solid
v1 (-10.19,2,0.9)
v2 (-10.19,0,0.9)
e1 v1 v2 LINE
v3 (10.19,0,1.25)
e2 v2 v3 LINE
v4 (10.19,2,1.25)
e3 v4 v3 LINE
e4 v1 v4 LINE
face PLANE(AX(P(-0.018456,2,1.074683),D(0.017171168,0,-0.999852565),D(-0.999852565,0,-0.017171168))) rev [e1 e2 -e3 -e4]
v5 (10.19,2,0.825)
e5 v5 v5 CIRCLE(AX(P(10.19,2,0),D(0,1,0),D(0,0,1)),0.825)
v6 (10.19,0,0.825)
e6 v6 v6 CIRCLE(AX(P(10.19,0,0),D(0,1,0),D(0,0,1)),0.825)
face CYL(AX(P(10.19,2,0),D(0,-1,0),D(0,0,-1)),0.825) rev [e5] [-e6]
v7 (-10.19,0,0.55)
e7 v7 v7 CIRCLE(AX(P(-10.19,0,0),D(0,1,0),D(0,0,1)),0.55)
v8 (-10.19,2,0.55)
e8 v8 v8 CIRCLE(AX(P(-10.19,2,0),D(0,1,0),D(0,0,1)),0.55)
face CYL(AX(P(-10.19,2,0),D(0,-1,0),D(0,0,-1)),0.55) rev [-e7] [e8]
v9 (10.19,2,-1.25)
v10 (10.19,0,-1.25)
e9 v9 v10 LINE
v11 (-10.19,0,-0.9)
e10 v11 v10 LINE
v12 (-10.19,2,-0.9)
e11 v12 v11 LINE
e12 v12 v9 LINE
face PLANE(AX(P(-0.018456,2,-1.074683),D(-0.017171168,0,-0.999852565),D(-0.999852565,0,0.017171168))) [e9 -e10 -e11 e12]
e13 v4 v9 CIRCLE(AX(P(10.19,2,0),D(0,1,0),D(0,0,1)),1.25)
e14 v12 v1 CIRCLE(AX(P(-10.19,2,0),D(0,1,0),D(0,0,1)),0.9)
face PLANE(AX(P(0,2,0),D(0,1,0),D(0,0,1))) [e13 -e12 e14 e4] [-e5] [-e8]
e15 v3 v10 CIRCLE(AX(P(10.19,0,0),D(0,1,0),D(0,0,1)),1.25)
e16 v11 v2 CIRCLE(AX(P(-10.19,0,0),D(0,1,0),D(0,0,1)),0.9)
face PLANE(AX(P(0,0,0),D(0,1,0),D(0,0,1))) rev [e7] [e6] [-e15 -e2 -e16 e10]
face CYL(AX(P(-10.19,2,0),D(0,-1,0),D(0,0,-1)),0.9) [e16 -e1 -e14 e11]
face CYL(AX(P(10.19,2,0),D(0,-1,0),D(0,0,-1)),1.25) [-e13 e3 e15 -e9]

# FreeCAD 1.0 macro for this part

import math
import FreeCAD as App
import Part
import Sketcher

V = App.Vector
Q = App.Units.Quantity

doc = App.newDocument("Part")
body = doc.addObject("PartDesign::Body", "Body")

# Sketch on XZ plane
sketch1 = body.newObject("Sketcher::SketchObject", "Sketch")
sketch1.AttachmentSupport = (doc.getObject("XZ_Plane"), [""])
sketch1.MapMode = "FlatFace"
sketch1.addGeometry(Part.LineSegment(V(10.147, -1.249, 0), V(-10.19, -0.9, 0)), False)
sketch1.addGeometry(Part.ArcOfCircle(Part.Circle(V(-10.19, 0, 0), V(0, 0, 1), 0.9), math.radians(90), math.radians(270)), False)
sketch1.addGeometry(Part.LineSegment(V(-10.19, 0.9, 0), V(10.147, 1.249, 0)), False)
sketch1.addGeometry(Part.LineSegment(V(10.147, 1.249, 0), V(10.19, 1.25, 0)), False)
sketch1.addGeometry(Part.ArcOfCircle(Part.Circle(V(10.19, 0, 0), V(0, 0, 1), 1.25), math.radians(-90), math.radians(90)), False)
sketch1.addGeometry(Part.LineSegment(V(10.19, -1.25, 0), V(10.147, -1.249, 0)), False)
sketch1.addGeometry(Part.Circle(V(-10.19, 0, 0), V(0, 0, 1), 0.55), False)
sketch1.addGeometry(Part.Circle(V(10.19, 0, 0), V(0, 0, 1), 0.825), False)
sketch1.addConstraint(Sketcher.Constraint("Coincident", 0, 2, 1, 2))
sketch1.addConstraint(Sketcher.Constraint("Coincident", 1, 1, 2, 1))
sketch1.addConstraint(Sketcher.Constraint("Coincident", 2, 2, 3, 1))
sketch1.addConstraint(Sketcher.Constraint("Coincident", 3, 2, 4, 2))
sketch1.addConstraint(Sketcher.Constraint("Coincident", 4, 1, 5, 1))
sketch1.addConstraint(Sketcher.Constraint("Coincident", 5, 2, 0, 1))
sketch1.addConstraint(Sketcher.Constraint("Coincident", 6, 3, 1, 3))
sketch1.addConstraint(Sketcher.Constraint("Coincident", 7, 3, 4, 3))
sketch1.addConstraint(Sketcher.Constraint("Symmetric", 1, 3, 4, 3, -1, 1))
sketch1.addConstraint(Sketcher.Constraint("Symmetric", 0, 2, 1, 1, -1))
sketch1.addConstraint(Sketcher.Constraint("Symmetric", 2, 2, 5, 2, -1))
sketch1.addConstraint(Sketcher.Constraint("Parallel", 2, 3))
sketch1.addConstraint(Sketcher.Constraint("Parallel", 0, 5))
sketch1.addConstraint(Sketcher.Constraint("Vertical", 6, 3, 0, 2))
sketch1.addConstraint(Sketcher.Constraint("Vertical", 7, 3, 3, 2))
sketch1.addConstraint(Sketcher.Constraint("Diameter", 6, Q("1.1 mm")))
sketch1.addConstraint(Sketcher.Constraint("Radius", 1, Q("0.9 mm")))
sketch1.addConstraint(Sketcher.Constraint("Diameter", 7, Q("1.65 mm")))
sketch1.addConstraint(Sketcher.Constraint("Radius", 4, Q("1.25 mm")))
sketch1.addConstraint(Sketcher.Constraint("DistanceX", 1, 3, -1, 1, Q("10.19 mm")))
sketch1.addConstraint(Sketcher.Constraint("DistanceX", -1, 1, 2, 2, Q("10.147078 mm")))
pad1 = body.newObject("PartDesign::Pad", "Pad")
pad1.Profile = sketch1
pad1.Length = 2
pad1.Reversed = True

doc.recompute()
